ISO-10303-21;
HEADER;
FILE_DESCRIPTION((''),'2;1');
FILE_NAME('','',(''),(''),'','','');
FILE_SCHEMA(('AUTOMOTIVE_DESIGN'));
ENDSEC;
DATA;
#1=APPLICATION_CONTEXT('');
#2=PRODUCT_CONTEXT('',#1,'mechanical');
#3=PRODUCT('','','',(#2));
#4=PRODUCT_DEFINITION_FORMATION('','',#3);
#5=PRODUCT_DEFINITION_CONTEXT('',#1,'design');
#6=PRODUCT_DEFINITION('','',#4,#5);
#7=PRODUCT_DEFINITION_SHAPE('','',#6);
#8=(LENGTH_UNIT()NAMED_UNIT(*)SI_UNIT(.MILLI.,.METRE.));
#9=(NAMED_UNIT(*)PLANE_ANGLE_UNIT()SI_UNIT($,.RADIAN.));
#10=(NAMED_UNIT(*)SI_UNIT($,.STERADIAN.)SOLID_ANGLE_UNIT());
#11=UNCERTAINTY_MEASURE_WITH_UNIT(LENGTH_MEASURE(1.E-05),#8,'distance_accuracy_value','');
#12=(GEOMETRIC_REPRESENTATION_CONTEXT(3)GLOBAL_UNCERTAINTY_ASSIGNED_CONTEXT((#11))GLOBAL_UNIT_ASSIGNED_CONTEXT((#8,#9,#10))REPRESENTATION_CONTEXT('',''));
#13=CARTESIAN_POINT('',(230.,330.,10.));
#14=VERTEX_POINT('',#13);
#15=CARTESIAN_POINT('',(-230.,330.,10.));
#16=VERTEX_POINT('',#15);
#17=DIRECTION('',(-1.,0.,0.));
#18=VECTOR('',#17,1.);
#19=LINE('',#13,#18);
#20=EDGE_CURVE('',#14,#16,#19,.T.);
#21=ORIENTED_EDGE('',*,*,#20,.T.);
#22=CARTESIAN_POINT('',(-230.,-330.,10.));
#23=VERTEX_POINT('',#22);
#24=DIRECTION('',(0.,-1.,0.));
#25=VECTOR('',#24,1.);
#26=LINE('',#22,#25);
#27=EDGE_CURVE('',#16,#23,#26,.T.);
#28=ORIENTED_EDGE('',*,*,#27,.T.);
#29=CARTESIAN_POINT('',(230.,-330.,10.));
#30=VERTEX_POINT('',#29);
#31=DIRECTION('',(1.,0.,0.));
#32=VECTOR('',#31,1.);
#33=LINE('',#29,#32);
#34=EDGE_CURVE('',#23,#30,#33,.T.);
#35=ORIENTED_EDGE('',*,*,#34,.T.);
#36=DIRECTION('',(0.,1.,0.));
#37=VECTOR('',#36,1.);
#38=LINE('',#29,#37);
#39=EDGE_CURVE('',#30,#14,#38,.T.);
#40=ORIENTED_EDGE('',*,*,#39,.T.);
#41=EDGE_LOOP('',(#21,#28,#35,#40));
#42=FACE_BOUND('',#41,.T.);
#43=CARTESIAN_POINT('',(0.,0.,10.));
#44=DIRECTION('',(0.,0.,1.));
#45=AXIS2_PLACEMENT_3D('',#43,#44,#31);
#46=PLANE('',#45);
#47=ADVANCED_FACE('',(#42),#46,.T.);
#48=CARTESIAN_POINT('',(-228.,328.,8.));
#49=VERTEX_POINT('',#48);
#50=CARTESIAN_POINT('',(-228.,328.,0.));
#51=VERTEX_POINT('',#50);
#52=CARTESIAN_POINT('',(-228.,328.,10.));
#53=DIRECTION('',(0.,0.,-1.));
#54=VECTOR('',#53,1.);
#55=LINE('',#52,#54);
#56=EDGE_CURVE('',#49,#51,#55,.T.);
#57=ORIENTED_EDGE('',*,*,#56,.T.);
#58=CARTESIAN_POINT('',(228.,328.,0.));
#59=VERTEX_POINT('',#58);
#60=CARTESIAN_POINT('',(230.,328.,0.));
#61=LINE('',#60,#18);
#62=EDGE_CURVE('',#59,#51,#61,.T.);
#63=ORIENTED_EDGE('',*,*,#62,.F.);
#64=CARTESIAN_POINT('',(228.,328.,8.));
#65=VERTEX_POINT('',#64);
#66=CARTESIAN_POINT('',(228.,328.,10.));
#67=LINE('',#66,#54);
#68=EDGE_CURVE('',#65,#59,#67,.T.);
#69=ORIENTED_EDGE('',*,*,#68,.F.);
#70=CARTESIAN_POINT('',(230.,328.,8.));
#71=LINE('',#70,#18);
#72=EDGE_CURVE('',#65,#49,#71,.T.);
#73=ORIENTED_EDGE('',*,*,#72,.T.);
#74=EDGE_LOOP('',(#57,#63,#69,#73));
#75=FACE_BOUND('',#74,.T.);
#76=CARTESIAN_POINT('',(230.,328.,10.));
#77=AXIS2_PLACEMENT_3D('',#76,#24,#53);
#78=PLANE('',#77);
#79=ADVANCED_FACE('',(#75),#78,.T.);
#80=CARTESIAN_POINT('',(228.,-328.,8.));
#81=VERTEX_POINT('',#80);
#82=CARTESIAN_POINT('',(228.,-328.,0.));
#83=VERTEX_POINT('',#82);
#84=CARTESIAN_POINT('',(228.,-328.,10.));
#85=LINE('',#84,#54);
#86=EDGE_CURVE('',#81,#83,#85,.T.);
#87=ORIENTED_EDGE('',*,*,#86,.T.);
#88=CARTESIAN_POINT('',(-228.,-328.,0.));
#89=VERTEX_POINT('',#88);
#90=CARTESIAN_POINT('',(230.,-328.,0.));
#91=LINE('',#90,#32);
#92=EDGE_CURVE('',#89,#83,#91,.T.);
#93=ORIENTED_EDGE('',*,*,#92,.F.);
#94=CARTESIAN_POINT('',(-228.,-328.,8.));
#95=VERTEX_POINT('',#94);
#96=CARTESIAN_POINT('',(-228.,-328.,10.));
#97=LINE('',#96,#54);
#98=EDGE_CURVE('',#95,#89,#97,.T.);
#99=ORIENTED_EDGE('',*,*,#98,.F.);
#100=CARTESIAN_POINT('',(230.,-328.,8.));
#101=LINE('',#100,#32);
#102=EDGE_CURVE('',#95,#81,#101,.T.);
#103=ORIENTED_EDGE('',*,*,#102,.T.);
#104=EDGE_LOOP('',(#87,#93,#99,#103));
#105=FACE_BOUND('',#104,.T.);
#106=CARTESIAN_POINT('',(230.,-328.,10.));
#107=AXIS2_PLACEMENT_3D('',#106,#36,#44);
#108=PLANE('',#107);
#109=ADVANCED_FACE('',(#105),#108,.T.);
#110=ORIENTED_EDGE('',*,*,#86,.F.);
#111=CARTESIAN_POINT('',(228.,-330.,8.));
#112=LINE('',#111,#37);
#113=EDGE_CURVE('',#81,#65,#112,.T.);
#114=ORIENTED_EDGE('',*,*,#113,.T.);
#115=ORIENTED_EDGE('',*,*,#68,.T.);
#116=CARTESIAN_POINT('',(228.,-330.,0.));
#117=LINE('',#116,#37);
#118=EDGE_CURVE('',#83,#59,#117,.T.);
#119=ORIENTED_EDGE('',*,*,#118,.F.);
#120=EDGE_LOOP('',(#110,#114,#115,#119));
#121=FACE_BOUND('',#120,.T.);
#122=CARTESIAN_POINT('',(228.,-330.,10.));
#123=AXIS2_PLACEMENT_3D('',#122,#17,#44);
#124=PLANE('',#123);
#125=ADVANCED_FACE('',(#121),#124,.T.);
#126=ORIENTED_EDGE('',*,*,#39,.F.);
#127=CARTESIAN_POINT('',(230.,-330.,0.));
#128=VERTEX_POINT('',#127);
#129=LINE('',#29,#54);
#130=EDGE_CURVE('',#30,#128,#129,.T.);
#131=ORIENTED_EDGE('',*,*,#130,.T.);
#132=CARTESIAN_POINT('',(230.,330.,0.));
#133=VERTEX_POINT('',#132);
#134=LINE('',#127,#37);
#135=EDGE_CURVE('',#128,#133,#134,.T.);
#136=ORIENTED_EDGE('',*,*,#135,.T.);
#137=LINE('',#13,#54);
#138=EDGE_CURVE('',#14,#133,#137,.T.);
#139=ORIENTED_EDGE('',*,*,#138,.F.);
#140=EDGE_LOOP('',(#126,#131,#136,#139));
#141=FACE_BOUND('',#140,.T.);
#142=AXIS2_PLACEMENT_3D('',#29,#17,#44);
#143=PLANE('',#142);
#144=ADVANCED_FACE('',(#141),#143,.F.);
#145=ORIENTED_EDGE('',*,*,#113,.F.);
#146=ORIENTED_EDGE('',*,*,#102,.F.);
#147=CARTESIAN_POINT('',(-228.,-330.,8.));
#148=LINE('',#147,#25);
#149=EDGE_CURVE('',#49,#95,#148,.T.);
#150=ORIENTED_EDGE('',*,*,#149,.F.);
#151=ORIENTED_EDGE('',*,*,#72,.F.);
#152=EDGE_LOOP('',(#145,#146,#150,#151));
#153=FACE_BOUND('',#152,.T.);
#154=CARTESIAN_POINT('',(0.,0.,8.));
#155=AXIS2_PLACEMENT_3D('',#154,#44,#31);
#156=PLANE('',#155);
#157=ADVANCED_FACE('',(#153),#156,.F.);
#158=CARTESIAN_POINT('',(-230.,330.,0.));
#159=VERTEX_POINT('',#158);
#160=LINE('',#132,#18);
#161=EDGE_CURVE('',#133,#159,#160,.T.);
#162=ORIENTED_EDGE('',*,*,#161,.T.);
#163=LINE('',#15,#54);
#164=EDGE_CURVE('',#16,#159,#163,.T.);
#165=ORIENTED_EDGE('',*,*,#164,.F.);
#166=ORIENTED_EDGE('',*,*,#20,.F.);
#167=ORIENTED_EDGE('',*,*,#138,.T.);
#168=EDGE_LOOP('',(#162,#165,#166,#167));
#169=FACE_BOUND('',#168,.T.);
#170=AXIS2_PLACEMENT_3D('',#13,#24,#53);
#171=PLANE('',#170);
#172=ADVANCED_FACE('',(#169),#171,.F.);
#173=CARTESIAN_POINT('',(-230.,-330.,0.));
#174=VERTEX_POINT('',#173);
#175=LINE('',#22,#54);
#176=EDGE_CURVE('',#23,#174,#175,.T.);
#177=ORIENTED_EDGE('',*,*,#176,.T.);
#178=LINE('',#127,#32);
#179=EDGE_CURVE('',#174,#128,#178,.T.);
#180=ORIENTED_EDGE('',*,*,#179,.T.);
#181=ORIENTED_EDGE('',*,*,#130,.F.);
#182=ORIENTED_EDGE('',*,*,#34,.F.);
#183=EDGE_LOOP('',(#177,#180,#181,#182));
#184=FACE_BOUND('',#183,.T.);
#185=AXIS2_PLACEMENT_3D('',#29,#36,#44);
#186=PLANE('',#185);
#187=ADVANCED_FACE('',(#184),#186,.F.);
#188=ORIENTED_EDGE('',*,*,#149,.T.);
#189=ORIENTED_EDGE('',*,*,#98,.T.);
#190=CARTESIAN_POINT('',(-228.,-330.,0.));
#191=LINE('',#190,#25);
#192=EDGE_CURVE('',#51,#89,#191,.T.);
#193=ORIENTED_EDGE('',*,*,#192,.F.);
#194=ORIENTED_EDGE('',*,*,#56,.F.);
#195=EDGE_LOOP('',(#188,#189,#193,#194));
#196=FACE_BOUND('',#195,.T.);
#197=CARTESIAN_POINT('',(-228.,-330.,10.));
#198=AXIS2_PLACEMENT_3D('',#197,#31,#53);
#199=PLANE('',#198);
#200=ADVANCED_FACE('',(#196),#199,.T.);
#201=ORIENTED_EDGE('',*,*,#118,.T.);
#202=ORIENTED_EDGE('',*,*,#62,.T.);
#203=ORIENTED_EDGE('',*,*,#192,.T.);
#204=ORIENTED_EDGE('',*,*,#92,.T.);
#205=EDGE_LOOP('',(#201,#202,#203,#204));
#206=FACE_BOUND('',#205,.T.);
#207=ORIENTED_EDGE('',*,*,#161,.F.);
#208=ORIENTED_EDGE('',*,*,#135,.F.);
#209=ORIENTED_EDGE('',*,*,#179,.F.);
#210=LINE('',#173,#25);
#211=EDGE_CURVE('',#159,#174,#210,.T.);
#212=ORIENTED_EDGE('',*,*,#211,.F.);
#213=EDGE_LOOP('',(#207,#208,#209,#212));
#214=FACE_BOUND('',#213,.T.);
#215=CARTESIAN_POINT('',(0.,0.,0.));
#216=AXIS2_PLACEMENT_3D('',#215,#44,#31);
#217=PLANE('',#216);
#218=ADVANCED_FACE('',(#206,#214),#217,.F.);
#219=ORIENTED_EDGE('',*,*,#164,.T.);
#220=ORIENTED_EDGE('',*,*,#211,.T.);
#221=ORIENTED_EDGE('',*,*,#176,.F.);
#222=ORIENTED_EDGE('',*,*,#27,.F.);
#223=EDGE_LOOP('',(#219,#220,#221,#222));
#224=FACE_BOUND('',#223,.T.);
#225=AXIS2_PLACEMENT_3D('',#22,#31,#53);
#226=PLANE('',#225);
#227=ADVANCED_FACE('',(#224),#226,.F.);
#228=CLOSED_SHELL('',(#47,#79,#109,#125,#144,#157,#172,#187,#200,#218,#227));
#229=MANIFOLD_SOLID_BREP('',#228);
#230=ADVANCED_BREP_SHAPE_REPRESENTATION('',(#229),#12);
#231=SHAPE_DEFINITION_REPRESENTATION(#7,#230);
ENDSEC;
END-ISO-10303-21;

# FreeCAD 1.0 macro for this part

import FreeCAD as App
import Part
import Sketcher
Q = App.Units.Quantity


def faces_at(feature, points):
    """Names of the faces that lie closest to the given points."""
    faces = feature.Shape.Faces
    near = lambda p: min(range(len(faces)), key=lambda i: faces[i].distToShape(Part.Vertex(*p))[0])
    return sorted({f"Face{near(p) + 1}" for p in points})

doc = App.newDocument("Part")
body = doc.addObject("PartDesign::Body", "Body")

# Sketch on XY plane
sketch1 = body.newObject("Sketcher::SketchObject", "Sketch")
sketch1.AttachmentSupport = (doc.getObject("XY_Plane"), [""])
sketch1.MapMode = "FlatFace"
sketch1.addGeometry(Part.LineSegment(App.Vector(-230, 330, 0), App.Vector(-230, -330, 0)), False)
sketch1.addGeometry(Part.LineSegment(App.Vector(-230, -330, 0), App.Vector(230, -330, 0)), False)
sketch1.addGeometry(Part.LineSegment(App.Vector(230, -330, 0), App.Vector(230, 330, 0)), False)
sketch1.addGeometry(Part.LineSegment(App.Vector(230, 330, 0), App.Vector(-230, 330, 0)), False)
sketch1.addConstraint(Sketcher.Constraint("Coincident", 0, 2, 1, 1))
sketch1.addConstraint(Sketcher.Constraint("Coincident", 1, 2, 2, 1))
sketch1.addConstraint(Sketcher.Constraint("Coincident", 2, 2, 3, 1))
sketch1.addConstraint(Sketcher.Constraint("Coincident", 3, 2, 0, 1))
sketch1.addConstraint(Sketcher.Constraint("Vertical", 0))
sketch1.addConstraint(Sketcher.Constraint("Horizontal", 1))
sketch1.addConstraint(Sketcher.Constraint("Vertical", 2))
sketch1.addConstraint(Sketcher.Constraint("Horizontal", 3))
sketch1.addConstraint(Sketcher.Constraint("Symmetric", 0, 2, 2, 2, -1, 1))
sketch1.addConstraint(Sketcher.Constraint("DistanceX", 1, 1, 1, 2, Q("460 mm")))
sketch1.addConstraint(Sketcher.Constraint("DistanceY", 0, 2, 0, 1, Q("660 mm")))
pad1 = body.newObject("PartDesign::Pad", "Pad")
pad1.Profile = sketch1
pad1.Length = 10
doc.recompute()

thickness = body.newObject("PartDesign::Thickness", "Thickness")
thickness.Base = (pad1, faces_at(pad1, [(0, 0, 0)]))
thickness.Value = 2
thickness.Reversed = True
thickness.Join = "Intersection"

doc.recompute()
